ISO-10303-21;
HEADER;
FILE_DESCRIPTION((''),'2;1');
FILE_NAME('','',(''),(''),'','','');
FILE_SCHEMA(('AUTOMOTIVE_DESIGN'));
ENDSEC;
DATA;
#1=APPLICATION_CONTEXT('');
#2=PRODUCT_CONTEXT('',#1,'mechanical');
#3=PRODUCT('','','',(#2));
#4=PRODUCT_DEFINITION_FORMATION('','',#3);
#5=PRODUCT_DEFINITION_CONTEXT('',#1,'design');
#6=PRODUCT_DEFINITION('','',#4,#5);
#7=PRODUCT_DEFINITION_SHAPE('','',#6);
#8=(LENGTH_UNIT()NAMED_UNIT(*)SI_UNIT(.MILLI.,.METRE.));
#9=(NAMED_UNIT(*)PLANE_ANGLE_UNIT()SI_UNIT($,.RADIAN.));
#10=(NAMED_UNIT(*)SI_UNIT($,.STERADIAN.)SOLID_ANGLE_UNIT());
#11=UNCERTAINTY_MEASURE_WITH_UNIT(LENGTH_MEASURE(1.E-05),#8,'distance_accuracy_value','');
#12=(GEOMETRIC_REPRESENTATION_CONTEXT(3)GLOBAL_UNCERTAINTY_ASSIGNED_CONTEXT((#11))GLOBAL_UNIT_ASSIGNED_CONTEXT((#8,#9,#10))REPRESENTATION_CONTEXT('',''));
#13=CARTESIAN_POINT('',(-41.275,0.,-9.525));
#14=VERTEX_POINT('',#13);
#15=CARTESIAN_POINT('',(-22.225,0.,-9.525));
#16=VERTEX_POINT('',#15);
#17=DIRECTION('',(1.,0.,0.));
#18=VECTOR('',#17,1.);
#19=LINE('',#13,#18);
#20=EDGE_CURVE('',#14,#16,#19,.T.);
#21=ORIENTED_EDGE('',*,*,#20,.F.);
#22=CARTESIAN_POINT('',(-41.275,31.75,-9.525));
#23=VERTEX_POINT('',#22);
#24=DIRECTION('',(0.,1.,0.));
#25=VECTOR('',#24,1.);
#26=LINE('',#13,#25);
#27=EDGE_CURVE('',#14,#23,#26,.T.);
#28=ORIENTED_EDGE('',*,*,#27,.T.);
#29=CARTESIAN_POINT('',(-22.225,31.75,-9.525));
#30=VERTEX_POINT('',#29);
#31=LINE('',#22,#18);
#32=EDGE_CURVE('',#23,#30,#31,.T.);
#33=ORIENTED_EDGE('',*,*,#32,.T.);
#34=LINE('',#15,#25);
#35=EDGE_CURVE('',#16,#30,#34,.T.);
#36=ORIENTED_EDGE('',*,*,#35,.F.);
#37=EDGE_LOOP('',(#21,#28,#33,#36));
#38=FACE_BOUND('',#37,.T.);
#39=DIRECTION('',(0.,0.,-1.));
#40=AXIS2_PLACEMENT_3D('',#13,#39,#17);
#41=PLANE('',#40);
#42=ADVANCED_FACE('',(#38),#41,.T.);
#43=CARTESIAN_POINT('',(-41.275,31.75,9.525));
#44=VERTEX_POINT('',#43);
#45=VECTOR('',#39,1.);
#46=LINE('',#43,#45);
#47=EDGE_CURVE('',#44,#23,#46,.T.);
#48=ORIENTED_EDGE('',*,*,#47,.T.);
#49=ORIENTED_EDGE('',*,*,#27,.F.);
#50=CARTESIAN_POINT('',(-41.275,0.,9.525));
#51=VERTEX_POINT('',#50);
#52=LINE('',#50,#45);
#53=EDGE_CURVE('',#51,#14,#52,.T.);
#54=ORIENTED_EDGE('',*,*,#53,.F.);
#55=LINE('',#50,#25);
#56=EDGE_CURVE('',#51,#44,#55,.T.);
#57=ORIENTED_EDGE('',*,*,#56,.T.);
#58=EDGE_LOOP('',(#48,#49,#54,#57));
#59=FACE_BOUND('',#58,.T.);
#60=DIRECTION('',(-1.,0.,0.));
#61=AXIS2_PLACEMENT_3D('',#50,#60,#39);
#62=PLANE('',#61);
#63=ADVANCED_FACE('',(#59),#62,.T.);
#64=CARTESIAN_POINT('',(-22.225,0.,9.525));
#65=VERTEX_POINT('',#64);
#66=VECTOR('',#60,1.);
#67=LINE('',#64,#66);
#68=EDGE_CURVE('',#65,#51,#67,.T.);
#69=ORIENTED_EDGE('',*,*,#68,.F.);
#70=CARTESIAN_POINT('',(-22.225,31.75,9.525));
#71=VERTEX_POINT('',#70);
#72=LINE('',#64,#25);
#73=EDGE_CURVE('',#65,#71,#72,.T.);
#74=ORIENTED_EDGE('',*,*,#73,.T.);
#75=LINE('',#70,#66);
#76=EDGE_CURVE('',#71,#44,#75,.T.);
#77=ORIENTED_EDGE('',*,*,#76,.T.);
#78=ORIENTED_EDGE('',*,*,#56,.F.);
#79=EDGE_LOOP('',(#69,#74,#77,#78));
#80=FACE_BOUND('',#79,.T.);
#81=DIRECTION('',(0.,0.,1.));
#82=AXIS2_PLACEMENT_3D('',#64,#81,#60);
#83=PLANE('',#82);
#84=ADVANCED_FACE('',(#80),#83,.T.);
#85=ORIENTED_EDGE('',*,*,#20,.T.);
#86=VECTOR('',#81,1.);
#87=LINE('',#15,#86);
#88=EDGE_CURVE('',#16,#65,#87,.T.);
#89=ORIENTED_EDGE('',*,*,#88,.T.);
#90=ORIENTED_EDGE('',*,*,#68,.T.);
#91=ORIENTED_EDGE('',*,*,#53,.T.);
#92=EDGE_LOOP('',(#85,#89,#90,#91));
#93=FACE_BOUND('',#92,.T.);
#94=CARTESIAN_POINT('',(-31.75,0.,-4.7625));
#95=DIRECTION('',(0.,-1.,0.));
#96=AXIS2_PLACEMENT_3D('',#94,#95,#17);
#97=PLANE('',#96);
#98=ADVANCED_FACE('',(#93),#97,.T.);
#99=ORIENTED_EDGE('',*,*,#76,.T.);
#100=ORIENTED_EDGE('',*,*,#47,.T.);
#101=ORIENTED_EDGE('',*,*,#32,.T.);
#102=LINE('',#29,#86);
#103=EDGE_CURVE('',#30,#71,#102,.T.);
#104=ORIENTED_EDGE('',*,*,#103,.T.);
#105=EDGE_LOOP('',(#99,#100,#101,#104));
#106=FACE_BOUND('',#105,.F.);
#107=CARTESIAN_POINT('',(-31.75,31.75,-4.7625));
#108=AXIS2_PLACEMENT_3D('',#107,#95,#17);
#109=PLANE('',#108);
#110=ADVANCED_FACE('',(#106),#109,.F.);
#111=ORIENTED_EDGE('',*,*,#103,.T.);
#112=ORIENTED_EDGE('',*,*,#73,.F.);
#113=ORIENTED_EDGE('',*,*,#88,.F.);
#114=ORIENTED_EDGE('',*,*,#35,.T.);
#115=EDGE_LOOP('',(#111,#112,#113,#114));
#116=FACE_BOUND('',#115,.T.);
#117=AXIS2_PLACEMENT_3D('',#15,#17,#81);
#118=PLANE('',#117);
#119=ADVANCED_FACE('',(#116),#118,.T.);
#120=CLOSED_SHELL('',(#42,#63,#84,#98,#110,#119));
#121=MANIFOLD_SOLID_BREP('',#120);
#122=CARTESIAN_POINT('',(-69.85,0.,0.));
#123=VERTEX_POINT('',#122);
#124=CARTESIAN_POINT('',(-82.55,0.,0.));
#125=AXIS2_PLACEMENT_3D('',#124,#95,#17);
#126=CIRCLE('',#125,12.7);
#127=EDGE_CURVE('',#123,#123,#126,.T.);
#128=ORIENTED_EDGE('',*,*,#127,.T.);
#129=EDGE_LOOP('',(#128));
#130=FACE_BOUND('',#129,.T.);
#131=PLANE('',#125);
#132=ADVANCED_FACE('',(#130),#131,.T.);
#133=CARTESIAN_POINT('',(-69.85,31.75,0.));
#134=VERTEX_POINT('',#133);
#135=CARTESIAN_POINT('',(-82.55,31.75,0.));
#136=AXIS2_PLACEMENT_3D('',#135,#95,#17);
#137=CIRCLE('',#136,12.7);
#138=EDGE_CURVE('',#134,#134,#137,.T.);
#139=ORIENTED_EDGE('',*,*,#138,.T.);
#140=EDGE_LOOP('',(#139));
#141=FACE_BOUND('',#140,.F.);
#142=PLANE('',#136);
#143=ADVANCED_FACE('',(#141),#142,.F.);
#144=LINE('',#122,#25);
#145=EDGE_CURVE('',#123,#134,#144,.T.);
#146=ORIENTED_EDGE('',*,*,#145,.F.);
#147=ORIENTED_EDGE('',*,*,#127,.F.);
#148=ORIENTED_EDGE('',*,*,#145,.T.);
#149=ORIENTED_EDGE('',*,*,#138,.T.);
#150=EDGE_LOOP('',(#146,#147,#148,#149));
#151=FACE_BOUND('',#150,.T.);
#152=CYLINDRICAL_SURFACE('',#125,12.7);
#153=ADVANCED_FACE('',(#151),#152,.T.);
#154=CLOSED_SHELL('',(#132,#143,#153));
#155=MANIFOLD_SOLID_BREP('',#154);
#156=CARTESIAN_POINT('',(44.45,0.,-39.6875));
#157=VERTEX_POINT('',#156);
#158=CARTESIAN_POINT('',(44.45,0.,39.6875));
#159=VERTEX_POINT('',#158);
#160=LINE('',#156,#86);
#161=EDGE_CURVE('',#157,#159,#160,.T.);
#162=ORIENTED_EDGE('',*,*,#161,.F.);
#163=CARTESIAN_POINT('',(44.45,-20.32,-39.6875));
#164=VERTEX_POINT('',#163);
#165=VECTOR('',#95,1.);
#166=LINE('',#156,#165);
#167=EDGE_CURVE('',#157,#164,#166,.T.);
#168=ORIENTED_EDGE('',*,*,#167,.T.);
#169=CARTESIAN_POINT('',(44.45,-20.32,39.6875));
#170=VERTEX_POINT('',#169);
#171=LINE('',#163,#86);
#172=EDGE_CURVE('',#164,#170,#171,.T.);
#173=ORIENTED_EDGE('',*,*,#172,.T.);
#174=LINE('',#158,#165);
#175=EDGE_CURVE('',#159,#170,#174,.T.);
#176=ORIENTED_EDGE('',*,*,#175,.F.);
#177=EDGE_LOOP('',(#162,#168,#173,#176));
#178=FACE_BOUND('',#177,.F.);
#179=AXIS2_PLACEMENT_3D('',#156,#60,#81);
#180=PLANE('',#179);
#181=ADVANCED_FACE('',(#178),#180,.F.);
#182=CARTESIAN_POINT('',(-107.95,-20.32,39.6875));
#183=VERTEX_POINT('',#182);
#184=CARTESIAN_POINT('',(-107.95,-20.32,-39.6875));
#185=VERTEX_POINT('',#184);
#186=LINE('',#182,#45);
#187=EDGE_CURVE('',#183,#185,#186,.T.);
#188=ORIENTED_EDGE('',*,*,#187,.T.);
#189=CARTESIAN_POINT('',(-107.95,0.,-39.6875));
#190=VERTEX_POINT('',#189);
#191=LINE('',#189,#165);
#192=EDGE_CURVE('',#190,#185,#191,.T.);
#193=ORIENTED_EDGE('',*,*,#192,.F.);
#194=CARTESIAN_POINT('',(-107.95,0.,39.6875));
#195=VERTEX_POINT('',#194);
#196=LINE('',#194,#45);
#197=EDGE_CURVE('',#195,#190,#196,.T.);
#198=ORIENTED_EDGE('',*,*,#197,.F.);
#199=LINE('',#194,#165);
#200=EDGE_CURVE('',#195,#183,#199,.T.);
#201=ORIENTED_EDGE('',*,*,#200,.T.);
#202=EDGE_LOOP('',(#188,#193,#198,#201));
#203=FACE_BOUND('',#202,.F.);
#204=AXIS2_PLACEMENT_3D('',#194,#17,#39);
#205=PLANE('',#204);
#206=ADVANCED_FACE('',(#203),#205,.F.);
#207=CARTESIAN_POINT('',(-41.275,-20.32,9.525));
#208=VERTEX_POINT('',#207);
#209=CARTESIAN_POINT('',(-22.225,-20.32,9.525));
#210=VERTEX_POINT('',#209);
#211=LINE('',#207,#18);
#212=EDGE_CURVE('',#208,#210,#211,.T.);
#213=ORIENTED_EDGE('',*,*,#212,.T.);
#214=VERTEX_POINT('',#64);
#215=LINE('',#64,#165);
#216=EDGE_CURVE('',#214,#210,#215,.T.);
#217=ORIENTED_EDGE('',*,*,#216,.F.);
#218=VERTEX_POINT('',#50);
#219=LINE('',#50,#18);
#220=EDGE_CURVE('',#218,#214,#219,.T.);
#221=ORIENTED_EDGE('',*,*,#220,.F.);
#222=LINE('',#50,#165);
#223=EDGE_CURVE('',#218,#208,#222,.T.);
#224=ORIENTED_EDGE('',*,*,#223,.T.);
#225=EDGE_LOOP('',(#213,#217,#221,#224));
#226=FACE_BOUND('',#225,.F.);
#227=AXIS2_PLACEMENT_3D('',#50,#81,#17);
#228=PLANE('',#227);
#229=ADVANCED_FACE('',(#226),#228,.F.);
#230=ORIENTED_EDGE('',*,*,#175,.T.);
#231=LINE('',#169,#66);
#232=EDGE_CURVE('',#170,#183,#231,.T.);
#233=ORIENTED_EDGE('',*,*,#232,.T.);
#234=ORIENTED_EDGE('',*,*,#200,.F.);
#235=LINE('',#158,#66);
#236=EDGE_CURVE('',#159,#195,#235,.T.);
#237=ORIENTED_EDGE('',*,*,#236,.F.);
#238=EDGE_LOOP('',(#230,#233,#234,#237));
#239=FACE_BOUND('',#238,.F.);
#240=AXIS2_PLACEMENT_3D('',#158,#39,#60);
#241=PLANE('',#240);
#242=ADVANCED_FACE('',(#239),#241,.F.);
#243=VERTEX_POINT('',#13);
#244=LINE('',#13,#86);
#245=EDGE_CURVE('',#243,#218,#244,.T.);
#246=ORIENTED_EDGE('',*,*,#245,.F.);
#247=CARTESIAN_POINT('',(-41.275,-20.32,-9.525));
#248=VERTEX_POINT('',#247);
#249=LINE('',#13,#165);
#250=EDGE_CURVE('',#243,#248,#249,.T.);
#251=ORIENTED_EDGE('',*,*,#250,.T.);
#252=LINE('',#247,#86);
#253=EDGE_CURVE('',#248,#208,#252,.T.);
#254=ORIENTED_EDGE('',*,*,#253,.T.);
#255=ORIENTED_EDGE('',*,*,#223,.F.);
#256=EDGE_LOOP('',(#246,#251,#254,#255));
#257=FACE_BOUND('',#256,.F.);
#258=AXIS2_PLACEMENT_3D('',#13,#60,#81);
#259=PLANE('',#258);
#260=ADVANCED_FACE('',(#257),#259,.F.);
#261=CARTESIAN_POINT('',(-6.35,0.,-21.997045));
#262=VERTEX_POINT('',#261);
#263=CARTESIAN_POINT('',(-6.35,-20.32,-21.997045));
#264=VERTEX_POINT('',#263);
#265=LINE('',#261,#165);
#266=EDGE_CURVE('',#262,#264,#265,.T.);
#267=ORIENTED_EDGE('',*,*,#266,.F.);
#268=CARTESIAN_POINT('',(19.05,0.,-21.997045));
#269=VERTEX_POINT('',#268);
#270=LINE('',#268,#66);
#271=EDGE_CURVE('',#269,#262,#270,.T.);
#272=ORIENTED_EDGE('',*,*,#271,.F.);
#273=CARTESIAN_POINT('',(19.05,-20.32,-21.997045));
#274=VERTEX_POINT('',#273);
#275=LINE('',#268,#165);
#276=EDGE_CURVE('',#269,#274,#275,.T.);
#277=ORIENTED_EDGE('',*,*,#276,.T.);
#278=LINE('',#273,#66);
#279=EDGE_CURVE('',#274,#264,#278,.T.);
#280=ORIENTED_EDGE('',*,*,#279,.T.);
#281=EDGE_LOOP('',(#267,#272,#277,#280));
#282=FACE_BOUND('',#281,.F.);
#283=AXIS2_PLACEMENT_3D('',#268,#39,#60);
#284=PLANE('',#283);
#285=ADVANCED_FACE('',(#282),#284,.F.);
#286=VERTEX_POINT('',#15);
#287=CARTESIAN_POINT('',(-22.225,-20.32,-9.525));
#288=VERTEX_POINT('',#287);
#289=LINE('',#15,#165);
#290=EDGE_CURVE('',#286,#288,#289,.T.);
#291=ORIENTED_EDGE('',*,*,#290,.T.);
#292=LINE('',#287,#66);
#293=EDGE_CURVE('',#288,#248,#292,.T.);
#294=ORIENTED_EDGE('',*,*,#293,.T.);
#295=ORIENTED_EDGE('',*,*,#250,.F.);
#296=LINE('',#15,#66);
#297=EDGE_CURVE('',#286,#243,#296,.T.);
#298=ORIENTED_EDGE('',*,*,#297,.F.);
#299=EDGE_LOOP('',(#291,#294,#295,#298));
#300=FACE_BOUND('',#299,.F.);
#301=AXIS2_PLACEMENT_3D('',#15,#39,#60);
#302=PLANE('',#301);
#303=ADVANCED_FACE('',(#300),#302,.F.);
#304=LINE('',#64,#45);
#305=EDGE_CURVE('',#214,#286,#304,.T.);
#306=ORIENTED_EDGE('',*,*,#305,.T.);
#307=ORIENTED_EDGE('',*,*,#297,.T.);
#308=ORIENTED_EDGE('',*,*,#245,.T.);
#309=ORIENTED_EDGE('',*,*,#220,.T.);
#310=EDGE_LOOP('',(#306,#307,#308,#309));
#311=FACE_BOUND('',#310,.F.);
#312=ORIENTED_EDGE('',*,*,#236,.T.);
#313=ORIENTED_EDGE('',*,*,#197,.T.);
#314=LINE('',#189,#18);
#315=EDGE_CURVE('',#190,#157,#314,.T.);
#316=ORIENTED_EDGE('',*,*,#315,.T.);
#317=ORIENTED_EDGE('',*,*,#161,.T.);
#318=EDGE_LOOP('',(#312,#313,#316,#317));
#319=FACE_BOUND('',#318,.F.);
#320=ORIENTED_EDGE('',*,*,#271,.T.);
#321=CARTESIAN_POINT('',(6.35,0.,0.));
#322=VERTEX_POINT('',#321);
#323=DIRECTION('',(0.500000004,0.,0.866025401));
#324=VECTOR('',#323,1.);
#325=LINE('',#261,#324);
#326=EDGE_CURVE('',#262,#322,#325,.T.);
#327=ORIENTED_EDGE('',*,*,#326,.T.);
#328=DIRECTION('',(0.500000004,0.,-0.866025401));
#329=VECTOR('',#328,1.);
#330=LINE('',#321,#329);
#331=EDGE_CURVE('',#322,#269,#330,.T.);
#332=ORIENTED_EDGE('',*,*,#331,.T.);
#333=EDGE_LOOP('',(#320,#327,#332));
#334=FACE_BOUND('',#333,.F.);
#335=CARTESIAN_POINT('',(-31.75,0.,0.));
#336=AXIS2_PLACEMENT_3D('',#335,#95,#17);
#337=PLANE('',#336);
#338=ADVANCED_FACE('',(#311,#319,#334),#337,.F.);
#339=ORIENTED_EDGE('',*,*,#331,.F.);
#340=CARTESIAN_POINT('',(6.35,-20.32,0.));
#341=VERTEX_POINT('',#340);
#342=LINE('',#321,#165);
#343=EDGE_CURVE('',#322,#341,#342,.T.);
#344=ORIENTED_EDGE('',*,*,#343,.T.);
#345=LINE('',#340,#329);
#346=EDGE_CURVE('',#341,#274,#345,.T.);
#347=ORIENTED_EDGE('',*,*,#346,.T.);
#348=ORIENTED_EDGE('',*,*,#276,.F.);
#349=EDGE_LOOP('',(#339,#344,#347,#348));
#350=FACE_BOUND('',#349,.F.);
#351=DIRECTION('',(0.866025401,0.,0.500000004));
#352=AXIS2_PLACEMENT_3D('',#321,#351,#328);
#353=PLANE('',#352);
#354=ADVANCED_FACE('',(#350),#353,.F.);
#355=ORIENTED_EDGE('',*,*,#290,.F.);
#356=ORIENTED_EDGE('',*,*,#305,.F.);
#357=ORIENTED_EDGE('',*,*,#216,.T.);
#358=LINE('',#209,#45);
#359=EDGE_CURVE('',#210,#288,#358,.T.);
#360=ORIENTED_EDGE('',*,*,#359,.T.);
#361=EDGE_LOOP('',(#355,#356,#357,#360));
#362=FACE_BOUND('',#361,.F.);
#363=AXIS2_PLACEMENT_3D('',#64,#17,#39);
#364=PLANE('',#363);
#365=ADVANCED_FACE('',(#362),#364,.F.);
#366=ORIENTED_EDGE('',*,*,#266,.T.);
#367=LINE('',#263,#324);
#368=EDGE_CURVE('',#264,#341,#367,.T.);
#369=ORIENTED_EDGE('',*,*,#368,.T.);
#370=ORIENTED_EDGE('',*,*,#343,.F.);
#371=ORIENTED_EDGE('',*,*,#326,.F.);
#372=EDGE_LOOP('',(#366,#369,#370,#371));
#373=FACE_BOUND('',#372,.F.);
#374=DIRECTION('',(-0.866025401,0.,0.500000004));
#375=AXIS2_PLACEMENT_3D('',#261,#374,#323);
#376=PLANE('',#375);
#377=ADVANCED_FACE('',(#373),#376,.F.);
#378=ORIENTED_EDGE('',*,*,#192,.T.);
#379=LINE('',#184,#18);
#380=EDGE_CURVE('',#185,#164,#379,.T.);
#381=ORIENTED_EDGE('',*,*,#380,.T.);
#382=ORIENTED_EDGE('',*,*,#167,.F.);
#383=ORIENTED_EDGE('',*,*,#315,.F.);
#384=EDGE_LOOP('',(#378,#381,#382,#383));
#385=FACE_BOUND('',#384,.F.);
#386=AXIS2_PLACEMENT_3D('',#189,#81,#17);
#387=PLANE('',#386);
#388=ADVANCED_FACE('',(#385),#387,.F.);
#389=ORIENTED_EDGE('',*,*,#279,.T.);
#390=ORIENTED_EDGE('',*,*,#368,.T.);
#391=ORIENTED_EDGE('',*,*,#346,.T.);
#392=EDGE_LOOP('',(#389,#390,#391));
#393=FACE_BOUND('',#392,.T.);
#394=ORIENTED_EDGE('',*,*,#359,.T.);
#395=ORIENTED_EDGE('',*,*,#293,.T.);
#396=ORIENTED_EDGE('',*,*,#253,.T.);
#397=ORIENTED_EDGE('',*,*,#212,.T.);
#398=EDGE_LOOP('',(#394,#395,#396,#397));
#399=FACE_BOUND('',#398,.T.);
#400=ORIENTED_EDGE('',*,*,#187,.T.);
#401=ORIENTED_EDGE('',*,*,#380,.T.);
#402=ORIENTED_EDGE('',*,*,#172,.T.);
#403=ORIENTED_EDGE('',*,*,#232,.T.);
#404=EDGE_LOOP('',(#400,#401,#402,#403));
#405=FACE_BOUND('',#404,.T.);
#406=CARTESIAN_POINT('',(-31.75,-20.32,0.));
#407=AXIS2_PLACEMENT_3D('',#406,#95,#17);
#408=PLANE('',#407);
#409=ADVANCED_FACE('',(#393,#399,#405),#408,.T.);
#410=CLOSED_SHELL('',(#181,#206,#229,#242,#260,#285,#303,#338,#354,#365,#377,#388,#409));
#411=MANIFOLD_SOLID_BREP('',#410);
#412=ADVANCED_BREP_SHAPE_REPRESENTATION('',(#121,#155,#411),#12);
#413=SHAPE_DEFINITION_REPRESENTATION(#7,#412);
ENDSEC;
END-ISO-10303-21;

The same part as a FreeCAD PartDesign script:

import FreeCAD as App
import Part
import Sketcher

V = App.Vector
Q = App.Units.Quantity


def add_polygon(sketch, points):
    """Adds a closed chain of lines whose ends are joined by coincident constraints."""
    first, n = sketch.GeometryCount, len(points)
    for a, b in zip(points, points[1:] + points[:1]):
        sketch.addGeometry(Part.LineSegment(App.Vector(*a, 0), App.Vector(*b, 0)), False)
    for i in range(n):
        sketch.addConstraint(Sketcher.Constraint("Coincident", first + i, 2, first + (i + 1) % n, 1))

doc = App.newDocument("Part")
body = doc.addObject("PartDesign::Body", "Body")

# Sketch on XZ plane
sketch1 = body.newObject("Sketcher::SketchObject", "Sketch")
sketch1.AttachmentSupport = (doc.getObject("XZ_Plane"), [""])
sketch1.MapMode = "FlatFace"
add_polygon(sketch1, [(44, -40), (44, 40), (-108, 40), (-108, -40)])  # lines 0-3
add_polygon(sketch1, [(19, -22), (-6, -22), (6, 0)])  # lines 4-6
add_polygon(sketch1, [(-41, 10), (-22, 10), (-22, -10), (-41, -10)])  # lines 7-10
sketch1.addConstraint([
    Sketcher.Constraint("Vertical", 0),
    Sketcher.Constraint("Horizontal", 1),
    Sketcher.Constraint("Vertical", 2),
    Sketcher.Constraint("Horizontal", 3),
    Sketcher.Constraint("Horizontal", 4),
    Sketcher.Constraint("Horizontal", 7),
    Sketcher.Constraint("Vertical", 8),
    Sketcher.Constraint("Horizontal", 9),
    Sketcher.Constraint("Vertical", 10),
    Sketcher.Constraint("PointOnObject", 5, 2, -1),
    Sketcher.Constraint("Equal", 9, 8),
    Sketcher.Constraint("Equal", 5, 6),
    Sketcher.Constraint("DistanceX", 1, 2, 1, 1, Q("6 in")),
    Sketcher.Constraint("DistanceX", 4, 2, 4, 1, Q("1 in")),
    Sketcher.Constraint("Distance", 5, Q("1 in")),
    Sketcher.Constraint("DistanceX", 4, 2, 3, 2, Q("2 in")),
    Sketcher.Constraint("DistanceX", 7, 1, 7, 2, Q("0.75 in")),
    Sketcher.Constraint("DistanceY", 0, 1, 0, 2, Q("3.125 in")),
    Sketcher.Constraint("DistanceX", -1, 1, 0, 2, Q("1.75 in")),
    Sketcher.Constraint("DistanceY", -1, 1, 0, 2, Q("1.5625 in")),
    Sketcher.Constraint("DistanceX", 7, 2, -1, 1, Q("0.875 in")),
    Sketcher.Constraint("DistanceY", -1, 1, 7, 2, Q("0.375 in")),
])
pad1 = body.newObject("PartDesign::Pad", "Pad")
pad1.Profile = sketch1
pad1.Length = Q("0.8 in")
body2 = doc.addObject("PartDesign::Body", "Body001")
body2.AllowCompound = True

# Sketch on XZ plane
sketch2 = body2.newObject("Sketcher::SketchObject", "Sketch001")
sketch2.AttachmentSupport = (doc.getObject("XZ_Plane001"), [""])
sketch2.MapMode = "FlatFace"
sketch2.addGeometry(Part.Circle(V(-83, 0, 0), V(0, 0, 1), 13), False)  # 0
add_polygon(sketch2, [(-22, -10), (-22, 10), (-41, 10), (-41, -10)])  # lines 1-4
sketch2.addConstraint([
    Sketcher.Constraint("Vertical", 1),
    Sketcher.Constraint("Horizontal", 2),
    Sketcher.Constraint("Vertical", 3),
    Sketcher.Constraint("Horizontal", 4),
    Sketcher.Constraint("PointOnObject", 0, 3, -1),
    Sketcher.Constraint("Equal", 4, 1),
    Sketcher.Constraint("Diameter", 0, Q("1 in")),
    Sketcher.Constraint("DistanceX", 2, 2, 2, 1, Q("0.75 in")),
    Sketcher.Constraint("DistanceX", 0, 3, -1, 1, Q("3.25 in")),
    Sketcher.Constraint("DistanceX", 1, 2, -1, 1, Q("0.875 in")),
    Sketcher.Constraint("DistanceY", -1, 1, 1, 2, Q("0.375 in")),
])
pad2 = body2.newObject("PartDesign::Pad", "Pad001")
pad2.Profile = sketch2
pad2.Length = Q("1.25 in")
pad2.Reversed = True

doc.recompute()
